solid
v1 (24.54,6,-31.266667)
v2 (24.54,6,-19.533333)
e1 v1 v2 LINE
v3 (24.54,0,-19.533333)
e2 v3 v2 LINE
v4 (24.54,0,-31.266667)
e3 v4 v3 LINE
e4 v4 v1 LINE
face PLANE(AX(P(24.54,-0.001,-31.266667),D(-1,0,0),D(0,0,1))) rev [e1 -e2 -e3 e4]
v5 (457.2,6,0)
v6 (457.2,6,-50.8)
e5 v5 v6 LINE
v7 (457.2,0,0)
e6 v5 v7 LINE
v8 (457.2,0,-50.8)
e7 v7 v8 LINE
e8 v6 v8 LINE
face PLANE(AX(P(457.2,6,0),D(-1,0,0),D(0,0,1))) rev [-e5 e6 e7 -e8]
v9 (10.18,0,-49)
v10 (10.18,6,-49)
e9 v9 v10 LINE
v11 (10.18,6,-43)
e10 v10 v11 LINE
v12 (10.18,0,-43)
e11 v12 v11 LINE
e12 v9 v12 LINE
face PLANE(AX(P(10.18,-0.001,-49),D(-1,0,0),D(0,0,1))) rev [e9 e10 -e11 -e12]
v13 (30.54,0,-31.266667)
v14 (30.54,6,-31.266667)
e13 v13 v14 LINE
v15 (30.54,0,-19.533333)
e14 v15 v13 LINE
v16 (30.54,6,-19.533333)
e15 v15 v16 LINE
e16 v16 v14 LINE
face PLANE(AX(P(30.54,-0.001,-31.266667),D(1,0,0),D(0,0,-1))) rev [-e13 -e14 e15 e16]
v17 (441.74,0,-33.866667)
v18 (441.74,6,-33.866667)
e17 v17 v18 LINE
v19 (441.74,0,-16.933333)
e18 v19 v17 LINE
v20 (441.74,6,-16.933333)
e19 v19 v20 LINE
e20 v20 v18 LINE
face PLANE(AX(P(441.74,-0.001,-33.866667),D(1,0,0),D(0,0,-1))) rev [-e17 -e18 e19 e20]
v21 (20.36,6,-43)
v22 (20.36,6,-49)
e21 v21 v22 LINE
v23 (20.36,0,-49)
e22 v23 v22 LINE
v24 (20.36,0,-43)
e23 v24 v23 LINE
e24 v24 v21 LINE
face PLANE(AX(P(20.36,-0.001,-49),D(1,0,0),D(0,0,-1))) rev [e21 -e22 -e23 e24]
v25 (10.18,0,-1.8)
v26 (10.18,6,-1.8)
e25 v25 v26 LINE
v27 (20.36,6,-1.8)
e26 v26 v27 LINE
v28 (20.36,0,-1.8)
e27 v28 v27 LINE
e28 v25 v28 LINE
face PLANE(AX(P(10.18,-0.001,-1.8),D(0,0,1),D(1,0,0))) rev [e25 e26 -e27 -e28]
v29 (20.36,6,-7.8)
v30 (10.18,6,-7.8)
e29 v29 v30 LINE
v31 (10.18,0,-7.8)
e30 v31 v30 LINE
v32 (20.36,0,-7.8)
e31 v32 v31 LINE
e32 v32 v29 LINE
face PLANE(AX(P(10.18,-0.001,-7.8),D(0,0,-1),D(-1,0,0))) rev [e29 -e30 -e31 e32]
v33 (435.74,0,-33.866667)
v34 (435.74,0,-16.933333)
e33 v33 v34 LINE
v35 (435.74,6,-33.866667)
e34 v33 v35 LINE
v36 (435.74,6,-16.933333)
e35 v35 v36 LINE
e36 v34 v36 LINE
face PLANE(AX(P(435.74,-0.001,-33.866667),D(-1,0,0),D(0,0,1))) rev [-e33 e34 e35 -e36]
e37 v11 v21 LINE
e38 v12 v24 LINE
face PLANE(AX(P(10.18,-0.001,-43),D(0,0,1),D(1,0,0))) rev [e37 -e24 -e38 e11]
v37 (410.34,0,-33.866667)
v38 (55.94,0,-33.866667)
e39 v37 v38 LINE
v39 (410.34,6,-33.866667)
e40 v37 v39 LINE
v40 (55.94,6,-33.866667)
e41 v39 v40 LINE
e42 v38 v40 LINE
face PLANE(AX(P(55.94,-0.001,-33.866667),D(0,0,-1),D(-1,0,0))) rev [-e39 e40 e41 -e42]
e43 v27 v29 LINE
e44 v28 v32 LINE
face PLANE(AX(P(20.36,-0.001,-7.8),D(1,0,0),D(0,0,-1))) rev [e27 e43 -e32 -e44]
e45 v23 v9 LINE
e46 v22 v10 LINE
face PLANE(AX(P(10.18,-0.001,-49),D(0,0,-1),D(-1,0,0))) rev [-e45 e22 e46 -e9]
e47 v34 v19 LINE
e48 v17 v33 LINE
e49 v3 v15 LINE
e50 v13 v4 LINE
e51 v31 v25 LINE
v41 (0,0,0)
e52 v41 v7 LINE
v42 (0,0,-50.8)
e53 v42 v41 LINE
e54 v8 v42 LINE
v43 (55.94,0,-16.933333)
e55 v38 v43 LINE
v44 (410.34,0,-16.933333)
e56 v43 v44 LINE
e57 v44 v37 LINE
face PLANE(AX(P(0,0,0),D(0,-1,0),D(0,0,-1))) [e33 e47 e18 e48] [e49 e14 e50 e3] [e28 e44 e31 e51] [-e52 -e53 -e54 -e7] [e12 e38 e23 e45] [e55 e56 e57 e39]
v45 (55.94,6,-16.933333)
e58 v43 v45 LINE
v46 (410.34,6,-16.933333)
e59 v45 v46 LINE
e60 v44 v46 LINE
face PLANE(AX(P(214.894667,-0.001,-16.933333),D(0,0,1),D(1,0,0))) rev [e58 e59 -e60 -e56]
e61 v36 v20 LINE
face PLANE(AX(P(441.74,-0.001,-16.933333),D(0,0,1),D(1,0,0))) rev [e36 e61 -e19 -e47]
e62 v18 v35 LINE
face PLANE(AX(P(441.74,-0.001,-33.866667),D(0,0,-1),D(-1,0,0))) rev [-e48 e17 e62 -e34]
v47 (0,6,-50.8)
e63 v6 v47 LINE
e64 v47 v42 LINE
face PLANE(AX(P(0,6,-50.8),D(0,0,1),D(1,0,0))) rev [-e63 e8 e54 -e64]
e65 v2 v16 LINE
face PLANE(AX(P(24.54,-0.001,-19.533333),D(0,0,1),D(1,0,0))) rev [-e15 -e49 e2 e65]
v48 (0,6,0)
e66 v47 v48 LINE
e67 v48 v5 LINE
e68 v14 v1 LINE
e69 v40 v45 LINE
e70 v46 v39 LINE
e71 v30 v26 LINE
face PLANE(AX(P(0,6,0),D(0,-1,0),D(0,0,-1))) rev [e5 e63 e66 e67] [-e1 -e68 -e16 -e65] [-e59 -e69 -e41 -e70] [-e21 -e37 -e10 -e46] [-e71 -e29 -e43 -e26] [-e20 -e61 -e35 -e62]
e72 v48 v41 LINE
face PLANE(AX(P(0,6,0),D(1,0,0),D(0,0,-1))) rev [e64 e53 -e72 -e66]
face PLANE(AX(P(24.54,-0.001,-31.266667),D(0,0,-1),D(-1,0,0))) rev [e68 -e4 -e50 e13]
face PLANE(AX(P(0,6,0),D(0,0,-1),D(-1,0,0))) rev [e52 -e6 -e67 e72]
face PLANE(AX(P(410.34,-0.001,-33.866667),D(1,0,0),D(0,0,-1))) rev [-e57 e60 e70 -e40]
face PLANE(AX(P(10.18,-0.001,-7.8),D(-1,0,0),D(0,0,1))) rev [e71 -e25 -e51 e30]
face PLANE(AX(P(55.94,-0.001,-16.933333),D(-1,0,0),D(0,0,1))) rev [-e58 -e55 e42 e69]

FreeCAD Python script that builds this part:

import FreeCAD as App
import Part
import Sketcher
from FreeCAD import Vector

doc = App.newDocument("Part")
body = doc.addObject("PartDesign::Body", "Body")

# Sketch on XZ plane
sketch1 = doc.addObject("Sketcher::SketchObject", "Sketch")
body.addObject(sketch1)
sketch1.AttachmentSupport = (doc.XZ_Plane, [""])
sketch1.MapMode = "FlatFace"
sketch1.addGeometry([
    Part.LineSegment(Vector(0, -51, 0), Vector(0, 0, 0)),
    Part.LineSegment(Vector(0, 0, 0), Vector(457, 0, 0)),
    Part.LineSegment(Vector(457, 0, 0), Vector(457, -51, 0)),
    Part.LineSegment(Vector(457, -51, 0), Vector(0, -51, 0)),
], False)
sketch1.addConstraint([
    Sketcher.Constraint("Coincident", 0, 2, 1, 1),
    Sketcher.Constraint("Coincident", 1, 2, 2, 1),
    Sketcher.Constraint("Coincident", 2, 2, 3, 1),
    Sketcher.Constraint("Coincident", 3, 2, 0, 1),
    Sketcher.Constraint("Vertical", 0),
    Sketcher.Constraint("Horizontal", 1),
    Sketcher.Constraint("Vertical", 2),
    Sketcher.Constraint("Horizontal", 3),
    Sketcher.Constraint("Coincident", 0, 2, -1, 1),
    Sketcher.Constraint("DistanceX", 1, 1, 1, 2, 457.2),
    Sketcher.Constraint("DistanceY", 0, 1, 0, 2, 50.8),
])
pad1 = doc.addObject("PartDesign::Pad", "Pad")
body.addObject(pad1)
pad1.Profile = sketch1
pad1.Length = 6
pad1.Reversed = True

# Sketch on XZ plane
sketch2 = doc.addObject("Sketcher::SketchObject", "Sketch001")
body.addObject(sketch2)
sketch2.AttachmentSupport = (doc.XZ_Plane, [""])
sketch2.MapMode = "FlatFace"
sketch2.AttachmentOffset = App.Placement(Vector(0, 0, -6), App.Rotation())
sketch2.addGeometry([
    Part.LineSegment(Vector(436, -34, 0), Vector(436, -17, 0)),
    Part.LineSegment(Vector(436, -17, 0), Vector(442, -17, 0)),
    Part.LineSegment(Vector(442, -17, 0), Vector(442, -34, 0)),
    Part.LineSegment(Vector(442, -34, 0), Vector(436, -34, 0)),
], False)
sketch2.addConstraint([
    Sketcher.Constraint("Coincident", 0, 2, 1, 1),
    Sketcher.Constraint("Coincident", 1, 2, 2, 1),
    Sketcher.Constraint("Coincident", 2, 2, 3, 1),
    Sketcher.Constraint("Coincident", 3, 2, 0, 1),
    Sketcher.Constraint("Vertical", 0),
    Sketcher.Constraint("Horizontal", 1),
    Sketcher.Constraint("Vertical", 2),
    Sketcher.Constraint("Horizontal", 3),
    Sketcher.Constraint("DistanceX", 1, 1, 1, 2, 6.0),
    Sketcher.Constraint("DistanceX", -1, 1, 0, 2, 435.74),
    Sketcher.Constraint("DistanceY", 0, 1, 0, 2, 16.933333),
    Sketcher.Constraint("DistanceY", 0, 2, -1, 1, 16.933333),
])
pocket1 = doc.addObject("PartDesign::Pocket", "Pocket")
body.addObject(pocket1)
pocket1.Profile = sketch2
pocket1.Type = "UpToFirst"
pocket1.Reversed = True

# Sketch on XZ plane
sketch3 = doc.addObject("Sketcher::SketchObject", "Sketch002")
body.addObject(sketch3)
sketch3.AttachmentSupport = (doc.XZ_Plane, [""])
sketch3.MapMode = "FlatFace"
sketch3.AttachmentOffset = App.Placement(Vector(0, 0, -6), App.Rotation())
sketch3.addGeometry([
    Part.LineSegment(Vector(25, -31, 0), Vector(25, -20, 0)),
    Part.LineSegment(Vector(25, -20, 0), Vector(31, -20, 0)),
    Part.LineSegment(Vector(31, -20, 0), Vector(31, -31, 0)),
    Part.LineSegment(Vector(31, -31, 0), Vector(25, -31, 0)),
], False)
sketch3.addConstraint([
    Sketcher.Constraint("Coincident", 0, 2, 1, 1),
    Sketcher.Constraint("Coincident", 1, 2, 2, 1),
    Sketcher.Constraint("Coincident", 2, 2, 3, 1),
    Sketcher.Constraint("Coincident", 3, 2, 0, 1),
    Sketcher.Constraint("Vertical", 0),
    Sketcher.Constraint("Horizontal", 1),
    Sketcher.Constraint("Vertical", 2),
    Sketcher.Constraint("Horizontal", 3),
    Sketcher.Constraint("DistanceX", 1, 1, 1, 2, 6.0),
    Sketcher.Constraint("DistanceX", -1, 1, 0, 2, 24.54),
    Sketcher.Constraint("DistanceY", 0, 1, 0, 2, 11.733333),
    Sketcher.Constraint("DistanceY", 0, 2, -1, 1, 19.533333),
])
pocket2 = doc.addObject("PartDesign::Pocket", "Pocket001")
body.addObject(pocket2)
pocket2.Profile = sketch3
pocket2.Type = "UpToFirst"
pocket2.Reversed = True

# Sketch on XZ plane
sketch4 = doc.addObject("Sketcher::SketchObject", "Sketch003")
body.addObject(sketch4)
sketch4.AttachmentSupport = (doc.XZ_Plane, [""])
sketch4.MapMode = "FlatFace"
sketch4.AttachmentOffset = App.Placement(Vector(0, 0, -6), App.Rotation())
sketch4.addGeometry([
    Part.LineSegment(Vector(10, -8, 0), Vector(10, -2, 0)),
    Part.LineSegment(Vector(10, -2, 0), Vector(20, -2, 0)),
    Part.LineSegment(Vector(20, -2, 0), Vector(20, -8, 0)),
    Part.LineSegment(Vector(20, -8, 0), Vector(10, -8, 0)),
], False)
sketch4.addConstraint([
    Sketcher.Constraint("Coincident", 0, 2, 1, 1),
    Sketcher.Constraint("Coincident", 1, 2, 2, 1),
    Sketcher.Constraint("Coincident", 2, 2, 3, 1),
    Sketcher.Constraint("Coincident", 3, 2, 0, 1),
    Sketcher.Constraint("Vertical", 0),
    Sketcher.Constraint("Horizontal", 1),
    Sketcher.Constraint("Vertical", 2),
    Sketcher.Constraint("Horizontal", 3),
    Sketcher.Constraint("DistanceY", 0, 1, 0, 2, 6.0),
    Sketcher.Constraint("DistanceX", 1, 1, 1, 2, 10.18),
    Sketcher.Constraint("DistanceY", 0, 2, -1, 1, 1.8),
    Sketcher.Constraint("DistanceX", -1, 1, 0, 2, 10.18),
])
pocket3 = doc.addObject("PartDesign::Pocket", "Pocket002")
body.addObject(pocket3)
pocket3.Profile = sketch4
pocket3.Type = "UpToFirst"
pocket3.Reversed = True

# Sketch on XZ plane
sketch5 = doc.addObject("Sketcher::SketchObject", "Sketch004")
body.addObject(sketch5)
sketch5.AttachmentSupport = (doc.XZ_Plane, [""])
sketch5.MapMode = "FlatFace"
sketch5.AttachmentOffset = App.Placement(Vector(0, 0, -6), App.Rotation())
sketch5.addGeometry([
    Part.LineSegment(Vector(10, -49, 0), Vector(10, -43, 0)),
    Part.LineSegment(Vector(10, -43, 0), Vector(20, -43, 0)),
    Part.LineSegment(Vector(20, -43, 0), Vector(20, -49, 0)),
    Part.LineSegment(Vector(20, -49, 0), Vector(10, -49, 0)),
], False)
sketch5.addConstraint([
    Sketcher.Constraint("Coincident", 0, 2, 1, 1),
    Sketcher.Constraint("Coincident", 1, 2, 2, 1),
    Sketcher.Constraint("Coincident", 2, 2, 3, 1),
    Sketcher.Constraint("Coincident", 3, 2, 0, 1),
    Sketcher.Constraint("Vertical", 0),
    Sketcher.Constraint("Horizontal", 1),
    Sketcher.Constraint("Vertical", 2),
    Sketcher.Constraint("Horizontal", 3),
    Sketcher.Constraint("DistanceY", 0, 1, 0, 2, 6.0),
    Sketcher.Constraint("DistanceY", 0, 2, -1, 1, 43.0),
    Sketcher.Constraint("DistanceX", 1, 1, 1, 2, 10.18),
    Sketcher.Constraint("DistanceX", -1, 1, 0, 2, 10.18),
])
pocket4 = doc.addObject("PartDesign::Pocket", "Pocket003")
body.addObject(pocket4)
pocket4.Profile = sketch5
pocket4.Type = "UpToFirst"
pocket4.Reversed = True

# Sketch on XZ plane
sketch6 = doc.addObject("Sketcher::SketchObject", "Sketch005")
body.addObject(sketch6)
sketch6.AttachmentSupport = (doc.XZ_Plane, [""])
sketch6.MapMode = "FlatFace"
sketch6.AttachmentOffset = App.Placement(Vector(0, 0, -6), App.Rotation())
sketch6.addGeometry([
    Part.LineSegment(Vector(410, -34, 0), Vector(56, -34, 0)),
    Part.LineSegment(Vector(56, -34, 0), Vector(56, -17, 0)),
    Part.LineSegment(Vector(56, -17, 0), Vector(410, -17, 0)),
    Part.LineSegment(Vector(410, -17, 0), Vector(410, -34, 0)),
], False)
sketch6.addConstraint([
    Sketcher.Constraint("Coincident", 0, 2, 1, 1),
    Sketcher.Constraint("Coincident", 1, 2, 2, 1),
    Sketcher.Constraint("Coincident", 2, 2, 3, 1),
    Sketcher.Constraint("Coincident", 3, 2, 0, 1),
    Sketcher.Constraint("Horizontal", 0),
    Sketcher.Constraint("Vertical", 1),
    Sketcher.Constraint("Horizontal", 2),
    Sketcher.Constraint("Vertical", 3),
    Sketcher.Constraint("DistanceX", 0, 2, 0, 1, 354.4),
    Sketcher.Constraint("DistanceX", -1, 1, 0, 2, 55.94),
    Sketcher.Constraint("DistanceY", 1, 1, 1, 2, 16.933333),
    Sketcher.Constraint("DistanceY", 0, 2, -1, 1, 33.866667),
])
pocket5 = doc.addObject("PartDesign::Pocket", "Pocket004")
body.addObject(pocket5)
pocket5.Profile = sketch6
pocket5.Type = "UpToFirst"
pocket5.Reversed = True

doc.recompute()
